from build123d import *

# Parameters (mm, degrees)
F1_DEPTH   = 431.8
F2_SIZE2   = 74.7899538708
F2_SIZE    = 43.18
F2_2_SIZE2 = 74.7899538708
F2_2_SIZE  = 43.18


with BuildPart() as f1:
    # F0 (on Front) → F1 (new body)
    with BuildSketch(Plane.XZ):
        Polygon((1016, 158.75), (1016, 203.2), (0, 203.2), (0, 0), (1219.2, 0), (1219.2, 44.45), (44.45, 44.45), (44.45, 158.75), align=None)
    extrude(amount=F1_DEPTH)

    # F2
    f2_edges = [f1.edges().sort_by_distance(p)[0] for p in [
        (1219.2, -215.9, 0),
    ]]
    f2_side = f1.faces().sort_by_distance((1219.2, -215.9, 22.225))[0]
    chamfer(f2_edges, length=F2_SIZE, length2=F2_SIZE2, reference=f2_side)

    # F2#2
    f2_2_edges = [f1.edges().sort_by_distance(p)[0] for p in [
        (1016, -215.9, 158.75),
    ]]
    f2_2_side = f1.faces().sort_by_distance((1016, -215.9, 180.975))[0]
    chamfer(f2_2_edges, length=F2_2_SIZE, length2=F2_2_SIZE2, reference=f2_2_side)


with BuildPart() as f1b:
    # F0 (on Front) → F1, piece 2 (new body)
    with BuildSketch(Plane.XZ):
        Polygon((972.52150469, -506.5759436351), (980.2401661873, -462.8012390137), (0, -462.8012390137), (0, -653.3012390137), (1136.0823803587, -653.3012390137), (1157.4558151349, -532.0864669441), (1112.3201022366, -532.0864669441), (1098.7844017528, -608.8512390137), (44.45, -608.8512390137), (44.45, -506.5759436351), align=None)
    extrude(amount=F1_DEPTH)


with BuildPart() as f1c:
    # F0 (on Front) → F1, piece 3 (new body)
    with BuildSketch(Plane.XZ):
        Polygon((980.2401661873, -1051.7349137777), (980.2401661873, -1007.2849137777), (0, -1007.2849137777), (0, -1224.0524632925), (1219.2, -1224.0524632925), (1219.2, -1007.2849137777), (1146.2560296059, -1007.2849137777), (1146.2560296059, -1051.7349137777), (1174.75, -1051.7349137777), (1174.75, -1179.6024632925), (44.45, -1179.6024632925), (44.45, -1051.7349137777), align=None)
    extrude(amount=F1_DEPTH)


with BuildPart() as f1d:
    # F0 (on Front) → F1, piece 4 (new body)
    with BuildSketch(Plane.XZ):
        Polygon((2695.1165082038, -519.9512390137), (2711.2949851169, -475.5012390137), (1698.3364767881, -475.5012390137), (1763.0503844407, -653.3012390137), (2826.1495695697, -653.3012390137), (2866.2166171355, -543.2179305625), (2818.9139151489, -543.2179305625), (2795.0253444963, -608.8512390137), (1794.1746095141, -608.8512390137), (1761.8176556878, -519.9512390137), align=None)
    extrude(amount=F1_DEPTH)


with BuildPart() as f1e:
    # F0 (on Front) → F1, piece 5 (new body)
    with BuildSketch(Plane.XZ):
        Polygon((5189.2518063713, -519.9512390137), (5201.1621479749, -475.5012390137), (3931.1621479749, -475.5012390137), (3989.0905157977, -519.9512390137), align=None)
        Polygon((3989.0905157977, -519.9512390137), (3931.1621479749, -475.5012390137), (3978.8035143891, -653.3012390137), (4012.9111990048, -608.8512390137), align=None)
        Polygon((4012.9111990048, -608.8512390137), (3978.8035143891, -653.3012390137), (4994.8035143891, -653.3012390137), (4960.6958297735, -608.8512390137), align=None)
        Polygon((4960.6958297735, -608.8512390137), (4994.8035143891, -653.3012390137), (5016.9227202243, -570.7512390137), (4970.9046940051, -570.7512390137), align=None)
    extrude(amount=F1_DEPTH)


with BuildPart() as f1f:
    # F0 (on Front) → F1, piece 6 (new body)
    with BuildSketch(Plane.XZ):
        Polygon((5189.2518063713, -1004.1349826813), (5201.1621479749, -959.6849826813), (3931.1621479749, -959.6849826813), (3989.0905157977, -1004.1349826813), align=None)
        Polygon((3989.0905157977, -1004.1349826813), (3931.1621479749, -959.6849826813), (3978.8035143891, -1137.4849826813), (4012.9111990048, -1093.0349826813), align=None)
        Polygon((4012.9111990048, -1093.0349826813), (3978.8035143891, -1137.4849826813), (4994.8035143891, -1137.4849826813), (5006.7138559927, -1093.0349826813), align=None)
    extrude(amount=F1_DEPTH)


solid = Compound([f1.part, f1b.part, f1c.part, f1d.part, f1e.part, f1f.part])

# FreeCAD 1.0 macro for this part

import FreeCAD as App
import Part
import Sketcher
from FreeCAD import Vector
Q = App.Units.Quantity


def edges_at(feature, points):
    """Names of the edges that pass closest to the given points."""
    edges = feature.Shape.Edges
    near = lambda p: min(range(len(edges)), key=lambda i: edges[i].distToShape(Part.Vertex(*p))[0])
    return sorted({f"Edge{near(p) + 1}" for p in points})

doc = App.newDocument("Part")
body = doc.addObject("PartDesign::Body", "Body")

# Sketch on XZ plane
sketch1 = doc.addObject("Sketcher::SketchObject", "Sketch")
body.addObject(sketch1)
sketch1.AttachmentSupport = (doc.XZ_Plane, [""])
sketch1.MapMode = "FlatFace"
sketch1.addGeometry([
    Part.LineSegment(Vector(1016, 158.75, 0), Vector(1016, 203.2, 0)),  # 0
    Part.LineSegment(Vector(1016, 203.2, 0), Vector(0, 203.2, 0)),  # 1
    Part.LineSegment(Vector(0, 203.2, 0), Vector(0, 0, 0)),  # 2
    Part.LineSegment(Vector(0, 0, 0), Vector(1219.2, 0, 0)),  # 3
    Part.LineSegment(Vector(1219.2, 0, 0), Vector(1219.2, 44.45, 0)),  # 4
    Part.LineSegment(Vector(1219.2, 44.45, 0), Vector(44.45, 44.45, 0)),  # 5
    Part.LineSegment(Vector(44.45, 44.45, 0), Vector(44.45, 158.75, 0)),  # 6
    Part.LineSegment(Vector(44.45, 158.75, 0), Vector(1016, 158.75, 0)),  # 7
], False)
sketch1.addConstraint([
    Sketcher.Constraint("Coincident", 0, 2, 1, 1),
    Sketcher.Constraint("Coincident", 1, 2, 2, 1),
    Sketcher.Constraint("Coincident", 2, 2, 3, 1),
    Sketcher.Constraint("Coincident", 3, 2, 4, 1),
    Sketcher.Constraint("Coincident", 4, 2, 5, 1),
    Sketcher.Constraint("Coincident", 5, 2, 6, 1),
    Sketcher.Constraint("Coincident", 6, 2, 7, 1),
    Sketcher.Constraint("Coincident", 7, 2, 0, 1),
    Sketcher.Constraint("Vertical", 0),
    Sketcher.Constraint("Horizontal", 1),
    Sketcher.Constraint("Vertical", 2),
    Sketcher.Constraint("Horizontal", 3),
    Sketcher.Constraint("Vertical", 4),
    Sketcher.Constraint("Horizontal", 5),
    Sketcher.Constraint("Vertical", 6),
    Sketcher.Constraint("Horizontal", 7),
    Sketcher.Constraint("Coincident", 2, 2, -1, 1),
    Sketcher.Constraint("Equal", 0, 4),
    Sketcher.Constraint("DistanceX", 1, 2, 1, 1, Q("40 in")),
    Sketcher.Constraint("DistanceX", 3, 1, 3, 2, Q("48 in")),
    Sketcher.Constraint("DistanceY", 2, 2, 2, 1, Q("8 in")),
    Sketcher.Constraint("DistanceY", 6, 1, 6, 2, Q("4.5 in")),
    Sketcher.Constraint("DistanceX", 5, 2, 5, 1, Q("46.25 in")),
])
pad1 = doc.addObject("PartDesign::Pad", "Pad")
body.addObject(pad1)
pad1.Profile = sketch1
pad1.Length = Q("17 in")
doc.recompute()

chamfer = doc.addObject("PartDesign::Chamfer", "Chamfer")
body.addObject(chamfer)
chamfer.Base = (pad1, edges_at(pad1, [(1219.2, -215.9, 0)]))
chamfer.ChamferType = "Two distances"
chamfer.Size = Q("1.7 in")
chamfer.Size2 = 74.789954
chamfer.FlipDirection = True
doc.recompute()

chamfer2 = doc.addObject("PartDesign::Chamfer", "Chamfer001")
body.addObject(chamfer2)
chamfer2.Base = (chamfer, edges_at(chamfer, [(1016, -215.9, 158.75)]))
chamfer2.ChamferType = "Two distances"
chamfer2.Size = Q("1.7 in")
chamfer2.Size2 = 74.789954
body2 = doc.addObject("PartDesign::Body", "Body001")

# Sketch on XZ plane
sketch2 = doc.addObject("Sketcher::SketchObject", "Sketch001")
body2.addObject(sketch2)
sketch2.AttachmentSupport = (doc.getObject("XZ_Plane001"), [""])
sketch2.MapMode = "FlatFace"
sketch2.addGeometry([
    Part.LineSegment(Vector(972.521505, -506.575944, 0), Vector(980.240166, -462.801239, 0)),  # 0
    Part.LineSegment(Vector(980.240166, -462.801239, 0), Vector(0, -462.801239, 0)),  # 1
    Part.LineSegment(Vector(0, -462.801239, 0), Vector(0, -653.301239, 0)),  # 2
    Part.LineSegment(Vector(0, -653.301239, 0), Vector(1136.08238, -653.301239, 0)),  # 3
    Part.LineSegment(Vector(1136.08238, -653.301239, 0), Vector(1157.455815, -532.086467, 0)),  # 4
    Part.LineSegment(Vector(1157.455815, -532.086467, 0), Vector(1112.320102, -532.086467, 0)),  # 5
    Part.LineSegment(Vector(1112.320102, -532.086467, 0), Vector(1098.784402, -608.851239, 0)),  # 6
    Part.LineSegment(Vector(1098.784402, -608.851239, 0), Vector(44.45, -608.851239, 0)),  # 7
    Part.LineSegment(Vector(44.45, -608.851239, 0), Vector(44.45, -506.575944, 0)),  # 8
    Part.LineSegment(Vector(44.45, -506.575944, 0), Vector(972.521505, -506.575944, 0)),  # 9
], False)
sketch2.addConstraint([
    Sketcher.Constraint("Coincident", 0, 2, 1, 1),
    Sketcher.Constraint("Coincident", 1, 2, 2, 1),
    Sketcher.Constraint("Coincident", 2, 2, 3, 1),
    Sketcher.Constraint("Coincident", 3, 2, 4, 1),
    Sketcher.Constraint("Coincident", 4, 2, 5, 1),
    Sketcher.Constraint("Coincident", 5, 2, 6, 1),
    Sketcher.Constraint("Coincident", 6, 2, 7, 1),
    Sketcher.Constraint("Coincident", 7, 2, 8, 1),
    Sketcher.Constraint("Coincident", 8, 2, 9, 1),
    Sketcher.Constraint("Coincident", 9, 2, 0, 1),
    Sketcher.Constraint("Horizontal", 1),
    Sketcher.Constraint("Vertical", 2),
    Sketcher.Constraint("Horizontal", 3),
    Sketcher.Constraint("Horizontal", 5),
    Sketcher.Constraint("Horizontal", 7),
    Sketcher.Constraint("Vertical", 8),
    Sketcher.Constraint("Horizontal", 9),
    Sketcher.Constraint("PointOnObject", 1, 2, -2),
    Sketcher.Constraint("Parallel", 0, 4),
    Sketcher.Constraint("Parallel", 4, 6),
    Sketcher.Constraint("DistanceY", 2, 2, 2, 1, Q("7.5 in")),
    Sketcher.Constraint("Angle", 0, Q("80 deg")),
    Sketcher.Constraint("Distance", 0, Q("1.75 in")),
    Sketcher.Constraint("DistanceX", -1, 1, 7, 2, Q("1.75 in")),
    Sketcher.Constraint("DistanceY", 3, 2, 6, 2, Q("1.75 in")),
    Sketcher.Constraint("DistanceX", 7, 2, 7, 1, Q("1054.334402 mm")),
    Sketcher.Constraint("DistanceX", 3, 1, 3, 2, Q("1136.08238 mm")),
    Sketcher.Constraint("DistanceX", 6, 2, 5, 2, Q("13.5357 mm")),
    Sketcher.Constraint("DistanceX", 1, 2, 1, 1, Q("980.240166 mm")),
    Sketcher.Constraint("DistanceY", 0, 2, -1, 1, Q("462.801239 mm")),
])
pad2 = doc.addObject("PartDesign::Pad", "Pad001")
body2.addObject(pad2)
pad2.Profile = sketch2
pad2.Length = Q("17 in")
body3 = doc.addObject("PartDesign::Body", "Body002")

# Sketch on XZ plane
sketch3 = doc.addObject("Sketcher::SketchObject", "Sketch002")
body3.addObject(sketch3)
sketch3.AttachmentSupport = (doc.getObject("XZ_Plane002"), [""])
sketch3.MapMode = "FlatFace"
sketch3.addGeometry([
    Part.LineSegment(Vector(980.240166, -1051.734914, 0), Vector(980.240166, -1007.284914, 0)),  # 0
    Part.LineSegment(Vector(980.240166, -1007.284914, 0), Vector(0, -1007.284914, 0)),  # 1
    Part.LineSegment(Vector(0, -1007.284914, 0), Vector(0, -1224.052463, 0)),  # 2
    Part.LineSegment(Vector(0, -1224.052463, 0), Vector(1219.2, -1224.052463, 0)),  # 3
    Part.LineSegment(Vector(1219.2, -1224.052463, 0), Vector(1219.2, -1007.284914, 0)),  # 4
    Part.LineSegment(Vector(1219.2, -1007.284914, 0), Vector(1146.25603, -1007.284914, 0)),  # 5
    Part.LineSegment(Vector(1146.25603, -1007.284914, 0), Vector(1146.25603, -1051.734914, 0)),  # 6
    Part.LineSegment(Vector(1146.25603, -1051.734914, 0), Vector(1174.75, -1051.734914, 0)),  # 7
    Part.LineSegment(Vector(1174.75, -1051.734914, 0), Vector(1174.75, -1179.602463, 0)),  # 8
    Part.LineSegment(Vector(1174.75, -1179.602463, 0), Vector(44.45, -1179.602463, 0)),  # 9
    Part.LineSegment(Vector(44.45, -1179.602463, 0), Vector(44.45, -1051.734914, 0)),  # 10
    Part.LineSegment(Vector(44.45, -1051.734914, 0), Vector(980.240166, -1051.734914, 0)),  # 11
], False)
sketch3.addConstraint([
    Sketcher.Constraint("Coincident", 0, 2, 1, 1),
    Sketcher.Constraint("Coincident", 1, 2, 2, 1),
    Sketcher.Constraint("Coincident", 2, 2, 3, 1),
    Sketcher.Constraint("Coincident", 3, 2, 4, 1),
    Sketcher.Constraint("Coincident", 4, 2, 5, 1),
    Sketcher.Constraint("Coincident", 5, 2, 6, 1),
    Sketcher.Constraint("Coincident", 6, 2, 7, 1),
    Sketcher.Constraint("Coincident", 7, 2, 8, 1),
    Sketcher.Constraint("Coincident", 8, 2, 9, 1),
    Sketcher.Constraint("Coincident", 9, 2, 10, 1),
    Sketcher.Constraint("Coincident", 10, 2, 11, 1),
    Sketcher.Constraint("Coincident", 11, 2, 0, 1),
    Sketcher.Constraint("Vertical", 0),
    Sketcher.Constraint("Horizontal", 1),
    Sketcher.Constraint("Vertical", 2),
    Sketcher.Constraint("Horizontal", 3),
    Sketcher.Constraint("Vertical", 4),
    Sketcher.Constraint("Horizontal", 5),
    Sketcher.Constraint("Vertical", 6),
    Sketcher.Constraint("Horizontal", 7),
    Sketcher.Constraint("Vertical", 8),
    Sketcher.Constraint("Horizontal", 9),
    Sketcher.Constraint("Vertical", 10),
    Sketcher.Constraint("Horizontal", 11),
    Sketcher.Constraint("PointOnObject", 1, 2, -2),
    Sketcher.Constraint("Horizontal", 1, 2, 4, 2),
    Sketcher.Constraint("Horizontal", 7, 2, 10, 2),
    Sketcher.Constraint("DistanceX", 3, 1, 3, 2, Q("48 in")),
    Sketcher.Constraint("DistanceX", 9, 2, 9, 1, Q("44.5 in")),
    Sketcher.Constraint("DistanceY", 0, 1, 0, 2, Q("1.75 in")),
    Sketcher.Constraint("DistanceX", -1, 1, 7, 2, Q("46.25 in")),
    Sketcher.Constraint("DistanceY", 3, 2, 8, 2, Q("1.75 in")),
    Sketcher.Constraint("DistanceX", 5, 2, 5, 1, Q("72.94397 mm")),
    Sketcher.Constraint("DistanceY", 2, 2, 2, 1, Q("216.76755 mm")),
    Sketcher.Constraint("DistanceX", 1, 2, 1, 1, Q("980.240166 mm")),
    Sketcher.Constraint("DistanceY", 0, 2, -1, 1, Q("1007.284914 mm")),
])
pad3 = doc.addObject("PartDesign::Pad", "Pad002")
body3.addObject(pad3)
pad3.Profile = sketch3
pad3.Length = Q("17 in")
body4 = doc.addObject("PartDesign::Body", "Body003")

# Sketch on XZ plane
sketch4 = doc.addObject("Sketcher::SketchObject", "Sketch003")
body4.addObject(sketch4)
sketch4.AttachmentSupport = (doc.getObject("XZ_Plane003"), [""])
sketch4.MapMode = "FlatFace"
sketch4.addGeometry([
    Part.LineSegment(Vector(2695.116508, -519.951239, 0), Vector(2711.294985, -475.501239, 0)),  # 0
    Part.LineSegment(Vector(2711.294985, -475.501239, 0), Vector(1698.336477, -475.501239, 0)),  # 1
    Part.LineSegment(Vector(1698.336477, -475.501239, 0), Vector(1763.050384, -653.301239, 0)),  # 2
    Part.LineSegment(Vector(1763.050384, -653.301239, 0), Vector(2826.14957, -653.301239, 0)),  # 3
    Part.LineSegment(Vector(2826.14957, -653.301239, 0), Vector(2866.216617, -543.217931, 0)),  # 4
    Part.LineSegment(Vector(2866.216617, -543.217931, 0), Vector(2818.913915, -543.217931, 0)),  # 5
    Part.LineSegment(Vector(2818.913915, -543.217931, 0), Vector(2795.025344, -608.851239, 0)),  # 6
    Part.LineSegment(Vector(2795.025344, -608.851239, 0), Vector(1794.17461, -608.851239, 0)),  # 7
    Part.LineSegment(Vector(1794.17461, -608.851239, 0), Vector(1761.817656, -519.951239, 0)),  # 8
    Part.LineSegment(Vector(1761.817656, -519.951239, 0), Vector(2695.116508, -519.951239, 0)),  # 9
], False)
sketch4.addConstraint([
    Sketcher.Constraint("Coincident", 0, 2, 1, 1),
    Sketcher.Constraint("Coincident", 1, 2, 2, 1),
    Sketcher.Constraint("Coincident", 2, 2, 3, 1),
    Sketcher.Constraint("Coincident", 3, 2, 4, 1),
    Sketcher.Constraint("Coincident", 4, 2, 5, 1),
    Sketcher.Constraint("Coincident", 5, 2, 6, 1),
    Sketcher.Constraint("Coincident", 6, 2, 7, 1),
    Sketcher.Constraint("Coincident", 7, 2, 8, 1),
    Sketcher.Constraint("Coincident", 8, 2, 9, 1),
    Sketcher.Constraint("Coincident", 9, 2, 0, 1),
    Sketcher.Constraint("Horizontal", 1),
    Sketcher.Constraint("Horizontal", 3),
    Sketcher.Constraint("Horizontal", 5),
    Sketcher.Constraint("Horizontal", 7),
    Sketcher.Constraint("Horizontal", 9),
    Sketcher.Constraint("Parallel", 0, 4),
    Sketcher.Constraint("Parallel", 4, 6),
    Sketcher.Constraint("Parallel", 2, 8),
    Sketcher.Constraint("Angle", 0, Q("70 deg")),
    Sketcher.Constraint("Angle", 2, Q("-70 deg")),
    Sketcher.Constraint("DistanceY", 2, 2, 1, 2, Q("7 in")),
    Sketcher.Constraint("DistanceY", 7, 2, 8, 2, Q("3.5 in")),
    Sketcher.Constraint("DistanceY", 3, 2, 6, 2, Q("1.75 in")),
    Sketcher.Constraint("DistanceX", 5, 2, 5, 1, Q("47.302702 mm")),
    Sketcher.Constraint("DistanceX", -1, 1, 8, 2, Q("69.3628998 in")),
    Sketcher.Constraint("DistanceX", 1, 2, 1, 1, Q("1012.958508 mm")),
    Sketcher.Constraint("Distance", 4, Q("117.14821 mm")),
    Sketcher.Constraint("DistanceX", 3, 1, 3, 2, Q("1063.099185 mm")),
    Sketcher.Constraint("DistanceX", 7, 2, 7, 1, Q("1000.850735 mm")),
    Sketcher.Constraint("DistanceY", 0, 2, -1, 1, Q("475.501239 mm")),
])
pad4 = doc.addObject("PartDesign::Pad", "Pad003")
body4.addObject(pad4)
pad4.Profile = sketch4
pad4.Length = Q("17 in")
body5 = doc.addObject("PartDesign::Body", "Body004")

# Sketch on XZ plane
sketch5 = doc.addObject("Sketcher::SketchObject", "Sketch004")
body5.addObject(sketch5)
sketch5.AttachmentSupport = (doc.getObject("XZ_Plane004"), [""])
sketch5.MapMode = "FlatFace"
sketch5.addGeometry([
    Part.LineSegment(Vector(5189.251806, -519.951239, 0), Vector(5201.162148, -475.501239, 0)),  # 0
    Part.LineSegment(Vector(5201.162148, -475.501239, 0), Vector(3931.162148, -475.501239, 0)),  # 1
    Part.LineSegment(Vector(3931.162148, -475.501239, 0), Vector(3978.803514, -653.301239, 0)),  # 2
    Part.LineSegment(Vector(3978.803514, -653.301239, 0), Vector(4994.803514, -653.301239, 0)),  # 3
    Part.LineSegment(Vector(4994.803514, -653.301239, 0), Vector(5016.92272, -570.751239, 0)),  # 4
    Part.LineSegment(Vector(5016.92272, -570.751239, 0), Vector(4970.904694, -570.751239, 0)),  # 5
    Part.LineSegment(Vector(4970.904694, -570.751239, 0), Vector(4960.69583, -608.851239, 0)),  # 6
    Part.LineSegment(Vector(4960.69583, -608.851239, 0), Vector(4012.911199, -608.851239, 0)),  # 7
    Part.LineSegment(Vector(4012.911199, -608.851239, 0), Vector(3989.090516, -519.951239, 0)),  # 8
    Part.LineSegment(Vector(3989.090516, -519.951239, 0), Vector(5189.251806, -519.951239, 0)),  # 9
], False)
sketch5.addConstraint([
    Sketcher.Constraint("Coincident", 0, 2, 1, 1),
    Sketcher.Constraint("Coincident", 1, 2, 2, 1),
    Sketcher.Constraint("Coincident", 2, 2, 3, 1),
    Sketcher.Constraint("Coincident", 3, 2, 4, 1),
    Sketcher.Constraint("Coincident", 4, 2, 5, 1),
    Sketcher.Constraint("Coincident", 5, 2, 6, 1),
    Sketcher.Constraint("Coincident", 6, 2, 7, 1),
    Sketcher.Constraint("Coincident", 7, 2, 8, 1),
    Sketcher.Constraint("Coincident", 8, 2, 9, 1),
    Sketcher.Constraint("Coincident", 9, 2, 0, 1),
    Sketcher.Constraint("Horizontal", 1),
    Sketcher.Constraint("Horizontal", 3),
    Sketcher.Constraint("Horizontal", 5),
    Sketcher.Constraint("Horizontal", 7),
    Sketcher.Constraint("Horizontal", 9),
    Sketcher.Constraint("Parallel", 0, 4),
    Sketcher.Constraint("Parallel", 4, 6),
    Sketcher.Constraint("Parallel", 2, 8),
    Sketcher.Constraint("DistanceX", 1, 2, 1, 1, Q("50 in")),
    Sketcher.Constraint("DistanceX", 3, 1, 3, 2, Q("40 in")),
    Sketcher.Constraint("Angle", 0, Q("75 deg")),
    Sketcher.Constraint("Angle", 2, Q("-75 deg")),
    Sketcher.Constraint("DistanceY", 2, 2, 1, 2, Q("7 in")),
    Sketcher.Constraint("DistanceY", 5, 2, 8, 2, Q("2 in")),
    Sketcher.Constraint("DistanceY", 6, 2, 5, 2, Q("1.5 in")),
    Sketcher.Constraint("DistanceY", 3, 2, 4, 2, Q("3.25 in")),
    Sketcher.Constraint("DistanceX", 2, 2, 8, 2, Q("0.4050001 in")),
    Sketcher.Constraint("DistanceX", 7, 2, 7, 1, Q("947.784631 mm")),
    Sketcher.Constraint("DistanceX", -1, 1, 7, 2, Q("4012.911199 mm")),
    Sketcher.Constraint("DistanceY", 0, 2, -1, 1, Q("475.501239 mm")),
])
pad5 = doc.addObject("PartDesign::Pad", "Pad004")
body5.addObject(pad5)
pad5.Profile = sketch5
pad5.Length = Q("17 in")
body6 = doc.addObject("PartDesign::Body", "Body005")

# Sketch on XZ plane
sketch6 = doc.addObject("Sketcher::SketchObject", "Sketch005")
body6.addObject(sketch6)
sketch6.AttachmentSupport = (doc.getObject("XZ_Plane005"), [""])
sketch6.MapMode = "FlatFace"
sketch6.addGeometry([
    Part.LineSegment(Vector(5189.251806, -1004.134983, 0), Vector(5201.162148, -959.684983, 0)),  # 0
    Part.LineSegment(Vector(5201.162148, -959.684983, 0), Vector(3931.162148, -959.684983, 0)),  # 1
    Part.LineSegment(Vector(3931.162148, -959.684983, 0), Vector(3978.803514, -1137.484983, 0)),  # 2
    Part.LineSegment(Vector(3978.803514, -1137.484983, 0), Vector(4994.803514, -1137.484983, 0)),  # 3
    Part.LineSegment(Vector(4994.803514, -1137.484983, 0), Vector(5006.713856, -1093.034983, 0)),  # 4
    Part.LineSegment(Vector(5006.713856, -1093.034983, 0), Vector(4012.911199, -1093.034983, 0)),  # 5
    Part.LineSegment(Vector(4012.911199, -1093.034983, 0), Vector(3989.090516, -1004.134983, 0)),  # 6
    Part.LineSegment(Vector(3989.090516, -1004.134983, 0), Vector(5189.251806, -1004.134983, 0)),  # 7
], False)
sketch6.addConstraint([
    Sketcher.Constraint("Coincident", 0, 2, 1, 1),
    Sketcher.Constraint("Coincident", 1, 2, 2, 1),
    Sketcher.Constraint("Coincident", 2, 2, 3, 1),
    Sketcher.Constraint("Coincident", 3, 2, 4, 1),
    Sketcher.Constraint("Coincident", 4, 2, 5, 1),
    Sketcher.Constraint("Coincident", 5, 2, 6, 1),
    Sketcher.Constraint("Coincident", 6, 2, 7, 1),
    Sketcher.Constraint("Coincident", 7, 2, 0, 1),
    Sketcher.Constraint("Horizontal", 1),
    Sketcher.Constraint("Horizontal", 3),
    Sketcher.Constraint("Horizontal", 5),
    Sketcher.Constraint("Horizontal", 7),
    Sketcher.Constraint("Parallel", 0, 4),
    Sketcher.Constraint("Parallel", 2, 6),
    Sketcher.Constraint("Equal", 0, 4),
    Sketcher.Constraint("DistanceX", 1, 2, 1, 1, Q("50 in")),
    Sketcher.Constraint("DistanceX", 3, 1, 3, 2, Q("40 in")),
    Sketcher.Constraint("Angle", 0, Q("75 deg")),
    Sketcher.Constraint("Angle", 2, Q("-75 deg")),
    Sketcher.Constraint("DistanceY", 2, 2, 1, 2, Q("7 in")),
    Sketcher.Constraint("DistanceY", 5, 2, 6, 2, Q("3.5 in")),
    Sketcher.Constraint("DistanceX", 2, 2, 6, 2, Q("0.4050001 in")),
    Sketcher.Constraint("DistanceX", -1, 1, 5, 2, Q("4012.911199 mm")),
    Sketcher.Constraint("DistanceY", 0, 2, -1, 1, Q("959.684983 mm")),
])
pad6 = doc.addObject("PartDesign::Pad", "Pad005")
body6.addObject(pad6)
pad6.Profile = sketch6
pad6.Length = Q("17 in")

doc.recompute()
